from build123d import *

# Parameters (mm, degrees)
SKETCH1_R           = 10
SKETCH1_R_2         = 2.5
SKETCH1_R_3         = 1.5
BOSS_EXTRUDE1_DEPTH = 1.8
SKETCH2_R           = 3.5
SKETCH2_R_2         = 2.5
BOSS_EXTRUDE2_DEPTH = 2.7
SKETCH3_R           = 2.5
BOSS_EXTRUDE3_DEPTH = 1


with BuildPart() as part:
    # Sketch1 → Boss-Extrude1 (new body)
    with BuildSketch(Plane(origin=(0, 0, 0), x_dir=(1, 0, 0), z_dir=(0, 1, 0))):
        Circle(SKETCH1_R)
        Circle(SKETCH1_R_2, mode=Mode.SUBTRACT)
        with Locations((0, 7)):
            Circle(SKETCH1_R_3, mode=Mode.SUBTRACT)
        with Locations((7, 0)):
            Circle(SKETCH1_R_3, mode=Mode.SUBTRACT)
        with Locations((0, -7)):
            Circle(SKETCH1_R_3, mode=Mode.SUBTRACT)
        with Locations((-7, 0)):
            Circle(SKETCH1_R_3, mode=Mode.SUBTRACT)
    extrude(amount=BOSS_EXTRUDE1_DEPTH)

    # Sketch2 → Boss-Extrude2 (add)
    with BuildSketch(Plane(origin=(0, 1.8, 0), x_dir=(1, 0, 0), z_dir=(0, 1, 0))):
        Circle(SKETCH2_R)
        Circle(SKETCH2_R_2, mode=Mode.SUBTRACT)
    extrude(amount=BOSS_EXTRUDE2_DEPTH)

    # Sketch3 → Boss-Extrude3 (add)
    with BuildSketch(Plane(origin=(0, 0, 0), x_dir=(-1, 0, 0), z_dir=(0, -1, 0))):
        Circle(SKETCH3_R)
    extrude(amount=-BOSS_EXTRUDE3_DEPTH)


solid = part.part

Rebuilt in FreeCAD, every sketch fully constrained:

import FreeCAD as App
import Part
import Sketcher
from FreeCAD import Vector

doc = App.newDocument("Part")
body = doc.addObject("PartDesign::Body", "Body")

# Sketch on XZ plane
sketch1 = doc.addObject("Sketcher::SketchObject", "Sketch")
body.addObject(sketch1)
sketch1.AttachmentSupport = (doc.XZ_Plane, [""])
sketch1.MapMode = "FlatFace"
sketch1.addGeometry([
    Part.Circle(Vector(0, 0, 0), Vector(0, 0, 1), 10),  # 0
    Part.Circle(Vector(0, 7, 0), Vector(0, 0, 1), 1.5),  # 1
    Part.Circle(Vector(-7, 0, 0), Vector(0, 0, 1), 1.5),  # 2
    Part.Circle(Vector(0, 0, 0), Vector(0, 0, 1), 2.5),  # 3
    Part.Circle(Vector(7, 0, 0), Vector(0, 0, 1), 1.5),  # 4
    Part.Circle(Vector(0, -7, 0), Vector(0, 0, 1), 1.5),  # 5
], False)
sketch1.addConstraint([
    Sketcher.Constraint("Coincident", 0, 3, -1, 1),
    Sketcher.Constraint("Coincident", 3, 3, -1, 1),
    Sketcher.Constraint("Equal", 1, 2),
    Sketcher.Constraint("Equal", 2, 4),
    Sketcher.Constraint("Equal", 4, 5),
    Sketcher.Constraint("Symmetric", 2, 3, 4, 3, -1, 1),
    Sketcher.Constraint("Symmetric", 1, 3, 5, 3, -1, 1),
    Sketcher.Constraint("PointOnObject", 1, 3, -2),
    Sketcher.Constraint("PointOnObject", 2, 3, -1),
    Sketcher.Constraint("Diameter", 0, 20.0),
    Sketcher.Constraint("Diameter", 1, 3.0),
    Sketcher.Constraint("Diameter", 3, 5.0),
    Sketcher.Constraint("DistanceY", -1, 1, 1, 3, 7.0),
    Sketcher.Constraint("DistanceX", 2, 3, -1, 1, 7.0),
])
pad1 = doc.addObject("PartDesign::Pad", "Pad")
body.addObject(pad1)
pad1.Profile = sketch1
pad1.Length = 1.8
pad1.Reversed = True

# Sketch on XZ plane
sketch2 = doc.addObject("Sketcher::SketchObject", "Sketch001")
body.addObject(sketch2)
sketch2.AttachmentSupport = (doc.XZ_Plane, [""])
sketch2.MapMode = "FlatFace"
sketch2.AttachmentOffset = App.Placement(Vector(0, 0, -1.8), App.Rotation())
sketch2.addGeometry([
    Part.Circle(Vector(0, 0, 0), Vector(0, 0, 1), 3.5),
    Part.Circle(Vector(0, 0, 0), Vector(0, 0, 1), 2.5),
], False)
sketch2.addConstraint([
    Sketcher.Constraint("Coincident", 0, 3, -1, 1),
    Sketcher.Constraint("Coincident", 1, 3, -1, 1),
    Sketcher.Constraint("Diameter", 0, 7.0),
    Sketcher.Constraint("Diameter", 1, 5.0),
])
pad2 = doc.addObject("PartDesign::Pad", "Pad001")
body.addObject(pad2)
pad2.Profile = sketch2
pad2.Length = 2.7
pad2.Reversed = True

# Sketch on XZ plane
sketch3 = doc.addObject("Sketcher::SketchObject", "Sketch002")
body.addObject(sketch3)
sketch3.AttachmentSupport = (doc.XZ_Plane, [""])
sketch3.MapMode = "FlatFace"
sketch3.addGeometry(Part.Circle(Vector(0, 0, 0), Vector(0, 0, 1), 2.5), False)
sketch3.addConstraint([
    Sketcher.Constraint("Coincident", 0, 3, -1, 1),
    Sketcher.Constraint("Diameter", 0, 5.0),
])
pad3 = doc.addObject("PartDesign::Pad", "Pad002")
body.addObject(pad3)
pad3.Profile = sketch3
pad3.Length = 1
pad3.Reversed = True

doc.recompute()
